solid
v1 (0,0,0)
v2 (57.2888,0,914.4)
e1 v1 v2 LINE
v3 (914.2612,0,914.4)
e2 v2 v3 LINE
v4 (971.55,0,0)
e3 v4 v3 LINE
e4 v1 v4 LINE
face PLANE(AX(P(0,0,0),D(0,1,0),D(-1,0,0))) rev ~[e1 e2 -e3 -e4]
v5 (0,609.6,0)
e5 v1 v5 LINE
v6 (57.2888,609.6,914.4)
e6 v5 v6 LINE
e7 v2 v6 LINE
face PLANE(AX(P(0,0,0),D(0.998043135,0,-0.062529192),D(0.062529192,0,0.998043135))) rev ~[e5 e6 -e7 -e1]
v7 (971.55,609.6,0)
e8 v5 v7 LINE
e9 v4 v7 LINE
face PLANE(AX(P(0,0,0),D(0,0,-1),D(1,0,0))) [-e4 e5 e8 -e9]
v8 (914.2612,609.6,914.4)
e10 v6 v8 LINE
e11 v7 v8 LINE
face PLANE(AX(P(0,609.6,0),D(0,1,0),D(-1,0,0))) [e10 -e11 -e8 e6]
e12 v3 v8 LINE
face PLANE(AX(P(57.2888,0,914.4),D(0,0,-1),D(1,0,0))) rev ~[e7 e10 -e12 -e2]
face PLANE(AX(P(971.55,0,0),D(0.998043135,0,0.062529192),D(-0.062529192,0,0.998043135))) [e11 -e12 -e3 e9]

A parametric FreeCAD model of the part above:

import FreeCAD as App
import Part
import Sketcher

V = App.Vector
Q = App.Units.Quantity

doc = App.newDocument("Part")
params = doc.addObject("Spreadsheet::Sheet", "Params")
for row, (alias, value) in enumerate([
    ("sketch1_width", "38.25 in"),
    ("pad1_length", "24 in"),
], start=1):
    params.set(f"A{row}", alias)
    params.set(f"B{row}", "=" + value)
    params.setAlias(f"B{row}", alias)

body = doc.addObject("PartDesign::Body", "Body")

sketch1 = body.newObject("Sketcher::SketchObject", "Sketch")
sketch1.AttachmentSupport = (doc.getObject("XZ_Plane"), [""])
sketch1.MapMode = "FlatFace"
sketch1.addGeometry([
    Part.LineSegment(V(972, 0, 0), V(0, 0, 0)),
    Part.LineSegment(V(0, 0, 0), V(57, 914, 0)),
    Part.LineSegment(V(57, 914, 0), V(914, 914, 0)),
    Part.LineSegment(V(914, 914, 0), V(972, 0, 0)),
], False)
sketch1.addConstraint([
    Sketcher.Constraint("Coincident", 0, 2, 1, 1),
    Sketcher.Constraint("Coincident", 1, 2, 2, 1),
    Sketcher.Constraint("Coincident", 2, 2, 3, 1),
    Sketcher.Constraint("Coincident", 3, 2, 0, 1),
    Sketcher.Constraint("Horizontal", 0),
    Sketcher.Constraint("Horizontal", 2),
    Sketcher.Constraint("Coincident", 0, 2, -1, 1),
    Sketcher.Constraint("Equal", 1, 3),
    Sketcher.Constraint("DistanceY", -1, 1, 1, 2, Q("36 in")),
    Sketcher.Constraint("DistanceX", 0, 2, 0, 1, Q("38.25 in")),
    Sketcher.Constraint("DistanceX", -1, 1, 1, 2, Q("57.2888 mm")),
])
sketch1.setExpression("Constraints[9]", "Params.sketch1_width")
pad1 = body.newObject("PartDesign::Pad", "Pad")
pad1.Profile = sketch1
pad1.setExpression("Length", "Params.pad1_length")
pad1.Reversed = True

doc.recompute()
